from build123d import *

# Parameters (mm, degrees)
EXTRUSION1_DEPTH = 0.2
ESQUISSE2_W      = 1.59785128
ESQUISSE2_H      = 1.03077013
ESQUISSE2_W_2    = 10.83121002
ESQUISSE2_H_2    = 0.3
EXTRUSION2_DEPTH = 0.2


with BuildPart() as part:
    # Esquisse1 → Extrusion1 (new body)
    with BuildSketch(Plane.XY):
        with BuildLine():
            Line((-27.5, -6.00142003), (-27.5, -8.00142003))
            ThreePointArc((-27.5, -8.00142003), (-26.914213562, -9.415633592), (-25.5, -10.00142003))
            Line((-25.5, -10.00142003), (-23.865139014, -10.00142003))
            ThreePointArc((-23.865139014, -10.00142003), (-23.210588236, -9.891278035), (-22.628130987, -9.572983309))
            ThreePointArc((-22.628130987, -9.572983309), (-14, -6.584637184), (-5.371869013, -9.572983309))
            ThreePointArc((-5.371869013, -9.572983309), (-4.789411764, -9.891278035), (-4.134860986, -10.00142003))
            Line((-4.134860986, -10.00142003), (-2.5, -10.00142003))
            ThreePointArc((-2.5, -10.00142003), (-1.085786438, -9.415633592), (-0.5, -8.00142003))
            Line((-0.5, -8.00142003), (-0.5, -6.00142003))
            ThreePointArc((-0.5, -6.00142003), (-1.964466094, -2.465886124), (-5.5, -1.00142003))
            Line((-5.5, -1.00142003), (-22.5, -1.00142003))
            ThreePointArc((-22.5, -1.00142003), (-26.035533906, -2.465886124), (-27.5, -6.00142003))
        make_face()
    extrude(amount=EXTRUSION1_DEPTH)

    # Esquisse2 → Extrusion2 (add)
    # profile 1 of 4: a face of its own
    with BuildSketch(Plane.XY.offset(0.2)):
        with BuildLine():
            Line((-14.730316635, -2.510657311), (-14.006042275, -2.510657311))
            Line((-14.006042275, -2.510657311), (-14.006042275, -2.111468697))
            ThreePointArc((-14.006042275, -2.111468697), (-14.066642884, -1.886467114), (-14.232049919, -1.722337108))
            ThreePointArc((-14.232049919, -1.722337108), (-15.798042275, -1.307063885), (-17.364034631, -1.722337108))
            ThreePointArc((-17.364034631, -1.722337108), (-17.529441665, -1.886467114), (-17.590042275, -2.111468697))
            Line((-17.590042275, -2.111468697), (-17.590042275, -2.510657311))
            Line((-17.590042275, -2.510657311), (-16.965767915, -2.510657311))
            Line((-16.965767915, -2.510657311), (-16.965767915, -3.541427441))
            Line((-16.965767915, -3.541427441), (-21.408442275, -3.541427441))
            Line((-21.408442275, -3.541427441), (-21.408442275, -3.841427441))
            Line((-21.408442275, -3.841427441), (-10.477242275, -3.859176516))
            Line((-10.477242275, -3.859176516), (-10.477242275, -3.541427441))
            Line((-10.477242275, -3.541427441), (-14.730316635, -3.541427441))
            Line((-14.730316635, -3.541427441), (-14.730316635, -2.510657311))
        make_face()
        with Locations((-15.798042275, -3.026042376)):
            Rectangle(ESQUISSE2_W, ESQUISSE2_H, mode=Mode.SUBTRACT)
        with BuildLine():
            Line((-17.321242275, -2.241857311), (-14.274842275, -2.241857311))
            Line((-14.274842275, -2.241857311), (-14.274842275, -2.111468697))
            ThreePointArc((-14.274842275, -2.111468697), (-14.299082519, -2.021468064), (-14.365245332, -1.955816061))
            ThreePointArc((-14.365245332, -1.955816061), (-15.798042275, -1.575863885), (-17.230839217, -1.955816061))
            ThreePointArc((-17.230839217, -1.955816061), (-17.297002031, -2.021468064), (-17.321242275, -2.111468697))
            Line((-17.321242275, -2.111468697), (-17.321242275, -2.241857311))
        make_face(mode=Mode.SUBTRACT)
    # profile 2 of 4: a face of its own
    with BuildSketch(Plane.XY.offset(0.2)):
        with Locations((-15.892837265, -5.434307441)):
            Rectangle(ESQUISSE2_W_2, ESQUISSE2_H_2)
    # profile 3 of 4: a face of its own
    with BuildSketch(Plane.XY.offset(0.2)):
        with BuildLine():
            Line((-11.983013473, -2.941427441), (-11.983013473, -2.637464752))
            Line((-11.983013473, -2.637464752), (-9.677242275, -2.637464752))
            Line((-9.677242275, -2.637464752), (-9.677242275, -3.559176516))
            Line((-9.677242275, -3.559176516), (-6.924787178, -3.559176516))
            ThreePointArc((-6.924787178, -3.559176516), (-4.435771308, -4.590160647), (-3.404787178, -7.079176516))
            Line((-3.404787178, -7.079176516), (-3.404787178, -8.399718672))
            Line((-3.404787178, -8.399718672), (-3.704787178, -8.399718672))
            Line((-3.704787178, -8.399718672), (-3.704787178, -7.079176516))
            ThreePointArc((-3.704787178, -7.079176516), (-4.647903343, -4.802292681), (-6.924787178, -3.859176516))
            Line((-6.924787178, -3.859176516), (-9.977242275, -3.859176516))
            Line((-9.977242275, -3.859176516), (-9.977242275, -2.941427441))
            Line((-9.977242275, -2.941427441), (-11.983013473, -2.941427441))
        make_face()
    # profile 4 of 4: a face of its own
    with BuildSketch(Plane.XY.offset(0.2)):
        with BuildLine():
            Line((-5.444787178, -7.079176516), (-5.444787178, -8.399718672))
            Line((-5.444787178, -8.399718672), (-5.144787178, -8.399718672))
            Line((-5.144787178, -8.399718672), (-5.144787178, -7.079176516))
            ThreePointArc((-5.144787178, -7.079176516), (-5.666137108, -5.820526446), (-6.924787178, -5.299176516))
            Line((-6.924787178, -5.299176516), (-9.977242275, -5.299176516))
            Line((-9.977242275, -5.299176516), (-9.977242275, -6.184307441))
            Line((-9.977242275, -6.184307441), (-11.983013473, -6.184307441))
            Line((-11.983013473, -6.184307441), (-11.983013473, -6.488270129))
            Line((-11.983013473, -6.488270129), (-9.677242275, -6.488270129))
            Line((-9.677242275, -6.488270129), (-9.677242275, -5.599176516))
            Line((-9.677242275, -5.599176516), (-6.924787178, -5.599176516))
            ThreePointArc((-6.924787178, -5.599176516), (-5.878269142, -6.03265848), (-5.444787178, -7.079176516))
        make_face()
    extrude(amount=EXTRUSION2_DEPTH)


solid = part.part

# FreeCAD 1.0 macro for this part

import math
import FreeCAD as App
import Part
import Sketcher

V = App.Vector
Q = App.Units.Quantity

doc = App.newDocument("Part")
body = doc.addObject("PartDesign::Body", "Body")

# Sketch on XY plane
sketch1 = body.newObject("Sketcher::SketchObject", "Sketch")
sketch1.AttachmentSupport = (doc.getObject("XY_Plane"), [""])
sketch1.MapMode = "FlatFace"
sketch1.addGeometry([
    Part.LineSegment(V(-27.5, -6, 0), V(-27.5, -8, 0)),  # 0
    Part.ArcOfCircle(Part.Circle(V(-25.5, -8, 0), V(0, 0, 1), 2), math.radians(-180), math.radians(-90)),  # 1
    Part.LineSegment(V(-25.5, -10, 0), V(-23.9, -10, 0)),  # 2
    Part.ArcOfCircle(Part.Circle(V(-23.9, -8, 0), V(0, 0, 1), 2), math.radians(-90), math.radians(-52)),  # 3
    Part.ArcOfCircle(Part.Circle(V(-14, -20.5, 0), V(0, 0, 1), 14), math.radians(52), math.radians(128)),  # 4
    Part.ArcOfCircle(Part.Circle(V(-4.1, -8, 0), V(0, 0, 1), 2), math.radians(-128), math.radians(-90)),  # 5
    Part.LineSegment(V(-4.1, -10, 0), V(-2.5, -10, 0)),  # 6
    Part.ArcOfCircle(Part.Circle(V(-2.5, -8, 0), V(0, 0, 1), 2), math.radians(-90), math.radians(0)),  # 7
    Part.LineSegment(V(-0.5, -8, 0), V(-0.5, -6, 0)),  # 8
    Part.ArcOfCircle(Part.Circle(V(-5.5, -6, 0), V(0, 0, 1), 5), math.radians(0), math.radians(90)),  # 9
    Part.LineSegment(V(-5.5, -1, 0), V(-22.5, -1, 0)),  # 10
    Part.ArcOfCircle(Part.Circle(V(-22.5, -6, 0), V(0, 0, 1), 5), math.radians(90), math.radians(180)),  # 11
], False)
sketch1.addConstraint([
    Sketcher.Constraint("Tangent", 0, 2, 1, 1),
    Sketcher.Constraint("Tangent", 1, 2, 2, 1),
    Sketcher.Constraint("Tangent", 2, 2, 3, 1),
    Sketcher.Constraint("Tangent", 3, 2, 4, 2),
    Sketcher.Constraint("Tangent", 4, 1, 5, 1),
    Sketcher.Constraint("Tangent", 5, 2, 6, 1),
    Sketcher.Constraint("Tangent", 6, 2, 7, 1),
    Sketcher.Constraint("Tangent", 7, 2, 8, 1),
    Sketcher.Constraint("Tangent", 8, 2, 9, 1),
    Sketcher.Constraint("Tangent", 9, 2, 10, 1),
    Sketcher.Constraint("Tangent", 10, 2, 11, 1),
    Sketcher.Constraint("Tangent", 11, 2, 0, 1),
    Sketcher.Constraint("Vertical", 0),
    Sketcher.Constraint("Horizontal", 2),
    Sketcher.Constraint("Horizontal", 6),
    Sketcher.Constraint("Vertical", 8),
    Sketcher.Constraint("Horizontal", 10),
    Sketcher.Constraint("Equal", 1, 3),
    Sketcher.Constraint("Equal", 3, 5),
    Sketcher.Constraint("Equal", 5, 7),
    Sketcher.Constraint("Equal", 9, 11),
    Sketcher.Constraint("Horizontal", 3, 3, 5, 3),
    Sketcher.Constraint("Equal", 2, 6),
    Sketcher.Constraint("Radius", 1, Q("2 mm")),
    Sketcher.Constraint("Radius", 9, Q("5 mm")),
    Sketcher.Constraint("DistanceX", 10, 2, 10, 1, Q("17 mm")),
    Sketcher.Constraint("DistanceY", 0, 2, 0, 1, Q("2 mm")),
    Sketcher.Constraint("Radius", 4, Q("13.95 mm")),
    Sketcher.Constraint("DistanceX", 4, 3, -1, 1, Q("14 mm")),
    Sketcher.Constraint("DistanceX", 2, 1, 2, 2, Q("1.634861 mm")),
    Sketcher.Constraint("DistanceY", 1, 3, -1, 1, Q("8.00142 mm")),
])
pad1 = body.newObject("PartDesign::Pad", "Pad")
pad1.Profile = sketch1
pad1.Length = 0.2

# Sketch on XY plane
sketch2 = body.newObject("Sketcher::SketchObject", "Sketch001")
sketch2.AttachmentSupport = (doc.getObject("XY_Plane"), [""])
sketch2.MapMode = "FlatFace"
sketch2.AttachmentOffset = App.Placement(V(0, 0, 0.2), App.Rotation())
sketch2.addGeometry([
    Part.LineSegment(V(-14.73, -2.51, 0), V(-14.01, -2.51, 0)),  # 0
    Part.LineSegment(V(-14.01, -2.51, 0), V(-14.01, -2.11, 0)),  # 1
    Part.ArcOfCircle(Part.Circle(V(-14.45, -2.11, 0), V(0, 0, 1), 0.45), math.radians(0), math.radians(60)),  # 2
    Part.ArcOfCircle(Part.Circle(V(-15.8, -4.47, 0), V(0, 0, 1), 3.16), math.radians(60), math.radians(120)),  # 3
    Part.ArcOfCircle(Part.Circle(V(-17.14, -2.11, 0), V(0, 0, 1), 0.45), math.radians(120), math.radians(180)),  # 4
    Part.LineSegment(V(-17.59, -2.11, 0), V(-17.59, -2.51, 0)),  # 5
    Part.LineSegment(V(-17.59, -2.51, 0), V(-16.97, -2.51, 0)),  # 6
    Part.LineSegment(V(-16.97, -2.51, 0), V(-16.97, -3.54, 0)),  # 7
    Part.LineSegment(V(-16.97, -3.54, 0), V(-21.41, -3.54, 0)),  # 8
    Part.LineSegment(V(-21.41, -3.54, 0), V(-21.41, -3.84, 0)),  # 9
    Part.LineSegment(V(-21.41, -3.84, 0), V(-10.48, -3.86, 0)),  # 10
    Part.LineSegment(V(-10.48, -3.86, 0), V(-10.48, -3.54, 0)),  # 11
    Part.LineSegment(V(-10.48, -3.54, 0), V(-14.73, -3.54, 0)),  # 12
    Part.LineSegment(V(-14.73, -3.54, 0), V(-14.73, -2.51, 0)),  # 13
    Part.LineSegment(V(-15, -3.54, 0), V(-16.6, -3.54, 0)),  # 14
    Part.LineSegment(V(-16.6, -3.54, 0), V(-16.6, -2.51, 0)),  # 15
    Part.LineSegment(V(-16.6, -2.51, 0), V(-15, -2.51, 0)),  # 16
    Part.LineSegment(V(-15, -2.51, 0), V(-15, -3.54, 0)),  # 17
    Part.LineSegment(V(-14.27, -2.24, 0), V(-17.32, -2.24, 0)),  # 18
    Part.LineSegment(V(-17.32, -2.24, 0), V(-17.32, -2.11, 0)),  # 19
    Part.ArcOfCircle(Part.Circle(V(-17.14, -2.11, 0), V(0, 0, 1), 0.18), math.radians(120), math.radians(180)),  # 20
    Part.ArcOfCircle(Part.Circle(V(-15.8, -4.47, 0), V(0, 0, 1), 2.89), math.radians(60), math.radians(120)),  # 21
    Part.ArcOfCircle(Part.Circle(V(-14.45, -2.11, 0), V(0, 0, 1), 0.18), math.radians(0), math.radians(60)),  # 22
    Part.LineSegment(V(-14.27, -2.11, 0), V(-14.27, -2.24, 0)),  # 23
    Part.LineSegment(V(-21.31, -5.28, 0), V(-21.31, -5.58, 0)),  # 24
    Part.LineSegment(V(-21.31, -5.58, 0), V(-10.48, -5.58, 0)),  # 25
    Part.LineSegment(V(-10.48, -5.58, 0), V(-10.48, -5.28, 0)),  # 26
    Part.LineSegment(V(-10.48, -5.28, 0), V(-21.31, -5.28, 0)),  # 27
    Part.LineSegment(V(-11.98, -2.64, 0), V(-11.98, -2.94, 0)),  # 28
    Part.LineSegment(V(-11.98, -2.94, 0), V(-9.98, -2.94, 0)),  # 29
    Part.LineSegment(V(-9.98, -2.94, 0), V(-9.98, -3.86, 0)),  # 30
    Part.LineSegment(V(-9.98, -3.86, 0), V(-6.92, -3.86, 0)),  # 31
    Part.ArcOfCircle(Part.Circle(V(-6.92, -7.08, 0), V(0, 0, 1), 3.22), math.radians(0), math.radians(90)),  # 32
    Part.LineSegment(V(-3.7, -7.08, 0), V(-3.7, -8.4, 0)),  # 33
    Part.LineSegment(V(-3.7, -8.4, 0), V(-3.4, -8.4, 0)),  # 34
    Part.LineSegment(V(-3.4, -8.4, 0), V(-3.4, -7.08, 0)),  # 35
    Part.ArcOfCircle(Part.Circle(V(-6.92, -7.08, 0), V(0, 0, 1), 3.52), math.radians(0), math.radians(90)),  # 36
    Part.LineSegment(V(-6.92, -3.56, 0), V(-9.68, -3.56, 0)),  # 37
    Part.LineSegment(V(-9.68, -3.56, 0), V(-9.68, -2.64, 0)),  # 38
    Part.LineSegment(V(-9.68, -2.64, 0), V(-11.98, -2.64, 0)),  # 39
    Part.LineSegment(V(-5.44, -7.08, 0), V(-5.44, -8.4, 0)),  # 40
    Part.LineSegment(V(-5.44, -8.4, 0), V(-5.14, -8.4, 0)),  # 41
    Part.LineSegment(V(-5.14, -8.4, 0), V(-5.14, -7.08, 0)),  # 42
    Part.ArcOfCircle(Part.Circle(V(-6.92, -7.08, 0), V(0, 0, 1), 1.78), math.radians(0), math.radians(90)),  # 43
    Part.LineSegment(V(-6.92, -5.3, 0), V(-9.98, -5.3, 0)),  # 44
    Part.LineSegment(V(-9.98, -5.3, 0), V(-9.98, -6.18, 0)),  # 45
    Part.LineSegment(V(-9.98, -6.18, 0), V(-11.98, -6.18, 0)),  # 46
    Part.LineSegment(V(-11.98, -6.18, 0), V(-11.98, -6.49, 0)),  # 47
    Part.LineSegment(V(-11.98, -6.49, 0), V(-9.68, -6.49, 0)),  # 48
    Part.LineSegment(V(-9.68, -6.49, 0), V(-9.68, -5.6, 0)),  # 49
    Part.LineSegment(V(-9.68, -5.6, 0), V(-6.92, -5.6, 0)),  # 50
    Part.ArcOfCircle(Part.Circle(V(-6.92, -7.08, 0), V(0, 0, 1), 1.48), math.radians(0), math.radians(90)),  # 51
], False)
sketch2.addConstraint([
    Sketcher.Constraint("Coincident", 0, 2, 1, 1),
    Sketcher.Constraint("Tangent", 1, 2, 2, 1),
    Sketcher.Constraint("Tangent", 2, 2, 3, 1),
    Sketcher.Constraint("Tangent", 3, 2, 4, 1),
    Sketcher.Constraint("Tangent", 4, 2, 5, 1),
    Sketcher.Constraint("Coincident", 5, 2, 6, 1),
    Sketcher.Constraint("Coincident", 6, 2, 7, 1),
    Sketcher.Constraint("Coincident", 7, 2, 8, 1),
    Sketcher.Constraint("Coincident", 8, 2, 9, 1),
    Sketcher.Constraint("Coincident", 9, 2, 10, 1),
    Sketcher.Constraint("Coincident", 10, 2, 11, 1),
    Sketcher.Constraint("Coincident", 11, 2, 12, 1),
    Sketcher.Constraint("Coincident", 12, 2, 13, 1),
    Sketcher.Constraint("Coincident", 13, 2, 0, 1),
    Sketcher.Constraint("Coincident", 14, 2, 15, 1),
    Sketcher.Constraint("Coincident", 15, 2, 16, 1),
    Sketcher.Constraint("Coincident", 16, 2, 17, 1),
    Sketcher.Constraint("Coincident", 17, 2, 14, 1),
    Sketcher.Constraint("Coincident", 18, 2, 19, 1),
    Sketcher.Constraint("Tangent", 19, 2, 20, 2),
    Sketcher.Constraint("Tangent", 20, 1, 21, 2),
    Sketcher.Constraint("Tangent", 21, 1, 22, 2),
    Sketcher.Constraint("Tangent", 22, 1, 23, 1),
    Sketcher.Constraint("Coincident", 23, 2, 18, 1),
    Sketcher.Constraint("Coincident", 24, 2, 25, 1),
    Sketcher.Constraint("Coincident", 25, 2, 26, 1),
    Sketcher.Constraint("Coincident", 26, 2, 27, 1),
    Sketcher.Constraint("Coincident", 27, 2, 24, 1),
    Sketcher.Constraint("Coincident", 28, 2, 29, 1),
    Sketcher.Constraint("Coincident", 29, 2, 30, 1),
    Sketcher.Constraint("Coincident", 30, 2, 31, 1),
    Sketcher.Constraint("Tangent", 31, 2, 32, 2),
    Sketcher.Constraint("Tangent", 32, 1, 33, 1),
    Sketcher.Constraint("Coincident", 33, 2, 34, 1),
    Sketcher.Constraint("Coincident", 34, 2, 35, 1),
    Sketcher.Constraint("Tangent", 35, 2, 36, 1),
    Sketcher.Constraint("Tangent", 36, 2, 37, 1),
    Sketcher.Constraint("Coincident", 37, 2, 38, 1),
    Sketcher.Constraint("Coincident", 38, 2, 39, 1),
    Sketcher.Constraint("Coincident", 39, 2, 28, 1),
    Sketcher.Constraint("Coincident", 40, 2, 41, 1),
    Sketcher.Constraint("Coincident", 41, 2, 42, 1),
    Sketcher.Constraint("Tangent", 42, 2, 43, 1),
    Sketcher.Constraint("Tangent", 43, 2, 44, 1),
    Sketcher.Constraint("Coincident", 44, 2, 45, 1),
    Sketcher.Constraint("Coincident", 45, 2, 46, 1),
    Sketcher.Constraint("Coincident", 46, 2, 47, 1),
    Sketcher.Constraint("Coincident", 47, 2, 48, 1),
    Sketcher.Constraint("Coincident", 48, 2, 49, 1),
    Sketcher.Constraint("Coincident", 49, 2, 50, 1),
    Sketcher.Constraint("Tangent", 50, 2, 51, 2),
    Sketcher.Constraint("Tangent", 51, 1, 40, 1),
    Sketcher.Constraint("Horizontal", 0),
    Sketcher.Constraint("Vertical", 1),
    Sketcher.Constraint("Vertical", 5),
    Sketcher.Constraint("Horizontal", 6),
    Sketcher.Constraint("Vertical", 7),
    Sketcher.Constraint("Horizontal", 8),
    Sketcher.Constraint("Vertical", 9),
    Sketcher.Constraint("Vertical", 11),
    Sketcher.Constraint("Horizontal", 12),
    Sketcher.Constraint("Vertical", 13),
    Sketcher.Constraint("Horizontal", 14),
    Sketcher.Constraint("Vertical", 15),
    Sketcher.Constraint("Horizontal", 16),
    Sketcher.Constraint("Vertical", 17),
    Sketcher.Constraint("Horizontal", 18),
    Sketcher.Constraint("Vertical", 19),
    Sketcher.Constraint("Vertical", 23),
    Sketcher.Constraint("Vertical", 24),
    Sketcher.Constraint("Horizontal", 25),
    Sketcher.Constraint("Vertical", 26),
    Sketcher.Constraint("Horizontal", 27),
    Sketcher.Constraint("Vertical", 28),
    Sketcher.Constraint("Horizontal", 29),
    Sketcher.Constraint("Vertical", 30),
    Sketcher.Constraint("Horizontal", 31),
    Sketcher.Constraint("Vertical", 33),
    Sketcher.Constraint("Horizontal", 34),
    Sketcher.Constraint("Vertical", 35),
    Sketcher.Constraint("Horizontal", 37),
    Sketcher.Constraint("Vertical", 38),
    Sketcher.Constraint("Horizontal", 39),
    Sketcher.Constraint("Vertical", 40),
    Sketcher.Constraint("Horizontal", 41),
    Sketcher.Constraint("Vertical", 42),
    Sketcher.Constraint("Horizontal", 44),
    Sketcher.Constraint("Vertical", 45),
    Sketcher.Constraint("Horizontal", 46),
    Sketcher.Constraint("Vertical", 47),
    Sketcher.Constraint("Horizontal", 48),
    Sketcher.Constraint("Vertical", 49),
    Sketcher.Constraint("Horizontal", 50),
    Sketcher.Constraint("Coincident", 20, 3, 4, 3),
    Sketcher.Constraint("Coincident", 21, 3, 3, 3),
    Sketcher.Constraint("Coincident", 22, 3, 2, 3),
    Sketcher.Constraint("Coincident", 36, 3, 32, 3),
    Sketcher.Constraint("Coincident", 43, 3, 32, 3),
    Sketcher.Constraint("Coincident", 51, 3, 32, 3),
    Sketcher.Constraint("Equal", 2, 4),
    Sketcher.Constraint("Horizontal", 2, 3, 4, 3),
    Sketcher.Constraint("Horizontal", 0, 2, 5, 2),
    Sketcher.Constraint("Horizontal", 8, 2, 11, 2),
    Sketcher.Constraint("Horizontal", 12, 2, 14, 2),
    Sketcher.Constraint("Horizontal", 13, 2, 15, 2),
    Sketcher.Constraint("Horizontal", 10, 2, 30, 2),
    Sketcher.Constraint("Horizontal", 34, 2, 40, 2),
    Sketcher.Constraint("Vertical", 30, 2, 44, 2),
    Sketcher.Constraint("Vertical", 39, 2, 46, 2),
    Sketcher.Constraint("Vertical", 38, 2, 48, 2),
    Sketcher.Constraint("Equal", 34, 41),
    Sketcher.Constraint("Equal", 41, 9),
    Sketcher.Constraint("Equal", 9, 24),
    Sketcher.Constraint("Equal", 28, 47),
    Sketcher.Constraint("Radius", 32, Q("3.22 mm")),
    Sketcher.Constraint("Radius", 36, Q("3.52 mm")),
    Sketcher.Constraint("Radius", 43, Q("1.78 mm")),
    Sketcher.Constraint("Radius", 2, Q("0.448 mm")),
    Sketcher.Constraint("Radius", 20, Q("0.1792 mm")),
    Sketcher.Constraint("Radius", 3, Q("3.16031 mm")),
    Sketcher.Constraint("DistanceX", 18, 2, 18, 1, Q("3.0464 mm")),
    Sketcher.Constraint("DistanceX", 14, 2, 14, 1, Q("1.597851 mm")),
    Sketcher.Constraint("DistanceX", 25, 1, 25, 2, Q("10.83121 mm")),
    Sketcher.Constraint("DistanceX", 29, 1, 29, 2, Q("2.005771 mm")),
    Sketcher.Constraint("DistanceX", 39, 2, 39, 1, Q("2.305771 mm")),
    Sketcher.Constraint("DistanceY", 1, 1, 1, 2, Q("0.399189 mm")),
    Sketcher.Constraint("DistanceY", 7, 2, 7, 1, Q("1.03077 mm")),
    Sketcher.Constraint("DistanceY", 11, 1, 11, 2, Q("0.317749 mm")),
    Sketcher.Constraint("DistanceY", 19, 1, 19, 2, Q("0.130389 mm")),
    Sketcher.Constraint("DistanceY", 30, 2, 30, 1, Q("0.917749 mm")),
    Sketcher.Constraint("DistanceY", 38, 1, 38, 2, Q("0.921712 mm")),
    Sketcher.Constraint("DistanceY", 45, 2, 45, 1, Q("0.885131 mm")),
    Sketcher.Constraint("DistanceX", 0, 1, 0, 2, Q("0.724274 mm")),
    Sketcher.Constraint("DistanceX", 6, 1, 6, 2, Q("0.624274 mm")),
    Sketcher.Constraint("DistanceX", 8, 2, 8, 1, Q("4.442674 mm")),
    Sketcher.Constraint("DistanceX", 12, 2, 12, 1, Q("4.253074 mm")),
    Sketcher.Constraint("DistanceX", 31, 1, 31, 2, Q("3.052455 mm")),
    Sketcher.Constraint("DistanceY", 33, 2, 33, 1, Q("1.320542 mm")),
    Sketcher.Constraint("DistanceY", 2, 3, -1, 1, Q("2.111469 mm")),
    Sketcher.Constraint("DistanceX", 2, 2, -1, 1, Q("14.23205 mm")),
    Sketcher.Constraint("DistanceX", 32, 3, -1, 1, Q("6.924787 mm")),
    Sketcher.Constraint("DistanceX", 14, 2, -1, 1, Q("16.596968 mm")),
    Sketcher.Constraint("DistanceX", 24, 2, -1, 1, Q("21.308442 mm")),
    Sketcher.Constraint("DistanceY", 24, 2, -1, 1, Q("5.584307 mm")),
])
pad2 = body.newObject("PartDesign::Pad", "Pad001")
pad2.Profile = sketch2
pad2.Length = 0.2

doc.recompute()
